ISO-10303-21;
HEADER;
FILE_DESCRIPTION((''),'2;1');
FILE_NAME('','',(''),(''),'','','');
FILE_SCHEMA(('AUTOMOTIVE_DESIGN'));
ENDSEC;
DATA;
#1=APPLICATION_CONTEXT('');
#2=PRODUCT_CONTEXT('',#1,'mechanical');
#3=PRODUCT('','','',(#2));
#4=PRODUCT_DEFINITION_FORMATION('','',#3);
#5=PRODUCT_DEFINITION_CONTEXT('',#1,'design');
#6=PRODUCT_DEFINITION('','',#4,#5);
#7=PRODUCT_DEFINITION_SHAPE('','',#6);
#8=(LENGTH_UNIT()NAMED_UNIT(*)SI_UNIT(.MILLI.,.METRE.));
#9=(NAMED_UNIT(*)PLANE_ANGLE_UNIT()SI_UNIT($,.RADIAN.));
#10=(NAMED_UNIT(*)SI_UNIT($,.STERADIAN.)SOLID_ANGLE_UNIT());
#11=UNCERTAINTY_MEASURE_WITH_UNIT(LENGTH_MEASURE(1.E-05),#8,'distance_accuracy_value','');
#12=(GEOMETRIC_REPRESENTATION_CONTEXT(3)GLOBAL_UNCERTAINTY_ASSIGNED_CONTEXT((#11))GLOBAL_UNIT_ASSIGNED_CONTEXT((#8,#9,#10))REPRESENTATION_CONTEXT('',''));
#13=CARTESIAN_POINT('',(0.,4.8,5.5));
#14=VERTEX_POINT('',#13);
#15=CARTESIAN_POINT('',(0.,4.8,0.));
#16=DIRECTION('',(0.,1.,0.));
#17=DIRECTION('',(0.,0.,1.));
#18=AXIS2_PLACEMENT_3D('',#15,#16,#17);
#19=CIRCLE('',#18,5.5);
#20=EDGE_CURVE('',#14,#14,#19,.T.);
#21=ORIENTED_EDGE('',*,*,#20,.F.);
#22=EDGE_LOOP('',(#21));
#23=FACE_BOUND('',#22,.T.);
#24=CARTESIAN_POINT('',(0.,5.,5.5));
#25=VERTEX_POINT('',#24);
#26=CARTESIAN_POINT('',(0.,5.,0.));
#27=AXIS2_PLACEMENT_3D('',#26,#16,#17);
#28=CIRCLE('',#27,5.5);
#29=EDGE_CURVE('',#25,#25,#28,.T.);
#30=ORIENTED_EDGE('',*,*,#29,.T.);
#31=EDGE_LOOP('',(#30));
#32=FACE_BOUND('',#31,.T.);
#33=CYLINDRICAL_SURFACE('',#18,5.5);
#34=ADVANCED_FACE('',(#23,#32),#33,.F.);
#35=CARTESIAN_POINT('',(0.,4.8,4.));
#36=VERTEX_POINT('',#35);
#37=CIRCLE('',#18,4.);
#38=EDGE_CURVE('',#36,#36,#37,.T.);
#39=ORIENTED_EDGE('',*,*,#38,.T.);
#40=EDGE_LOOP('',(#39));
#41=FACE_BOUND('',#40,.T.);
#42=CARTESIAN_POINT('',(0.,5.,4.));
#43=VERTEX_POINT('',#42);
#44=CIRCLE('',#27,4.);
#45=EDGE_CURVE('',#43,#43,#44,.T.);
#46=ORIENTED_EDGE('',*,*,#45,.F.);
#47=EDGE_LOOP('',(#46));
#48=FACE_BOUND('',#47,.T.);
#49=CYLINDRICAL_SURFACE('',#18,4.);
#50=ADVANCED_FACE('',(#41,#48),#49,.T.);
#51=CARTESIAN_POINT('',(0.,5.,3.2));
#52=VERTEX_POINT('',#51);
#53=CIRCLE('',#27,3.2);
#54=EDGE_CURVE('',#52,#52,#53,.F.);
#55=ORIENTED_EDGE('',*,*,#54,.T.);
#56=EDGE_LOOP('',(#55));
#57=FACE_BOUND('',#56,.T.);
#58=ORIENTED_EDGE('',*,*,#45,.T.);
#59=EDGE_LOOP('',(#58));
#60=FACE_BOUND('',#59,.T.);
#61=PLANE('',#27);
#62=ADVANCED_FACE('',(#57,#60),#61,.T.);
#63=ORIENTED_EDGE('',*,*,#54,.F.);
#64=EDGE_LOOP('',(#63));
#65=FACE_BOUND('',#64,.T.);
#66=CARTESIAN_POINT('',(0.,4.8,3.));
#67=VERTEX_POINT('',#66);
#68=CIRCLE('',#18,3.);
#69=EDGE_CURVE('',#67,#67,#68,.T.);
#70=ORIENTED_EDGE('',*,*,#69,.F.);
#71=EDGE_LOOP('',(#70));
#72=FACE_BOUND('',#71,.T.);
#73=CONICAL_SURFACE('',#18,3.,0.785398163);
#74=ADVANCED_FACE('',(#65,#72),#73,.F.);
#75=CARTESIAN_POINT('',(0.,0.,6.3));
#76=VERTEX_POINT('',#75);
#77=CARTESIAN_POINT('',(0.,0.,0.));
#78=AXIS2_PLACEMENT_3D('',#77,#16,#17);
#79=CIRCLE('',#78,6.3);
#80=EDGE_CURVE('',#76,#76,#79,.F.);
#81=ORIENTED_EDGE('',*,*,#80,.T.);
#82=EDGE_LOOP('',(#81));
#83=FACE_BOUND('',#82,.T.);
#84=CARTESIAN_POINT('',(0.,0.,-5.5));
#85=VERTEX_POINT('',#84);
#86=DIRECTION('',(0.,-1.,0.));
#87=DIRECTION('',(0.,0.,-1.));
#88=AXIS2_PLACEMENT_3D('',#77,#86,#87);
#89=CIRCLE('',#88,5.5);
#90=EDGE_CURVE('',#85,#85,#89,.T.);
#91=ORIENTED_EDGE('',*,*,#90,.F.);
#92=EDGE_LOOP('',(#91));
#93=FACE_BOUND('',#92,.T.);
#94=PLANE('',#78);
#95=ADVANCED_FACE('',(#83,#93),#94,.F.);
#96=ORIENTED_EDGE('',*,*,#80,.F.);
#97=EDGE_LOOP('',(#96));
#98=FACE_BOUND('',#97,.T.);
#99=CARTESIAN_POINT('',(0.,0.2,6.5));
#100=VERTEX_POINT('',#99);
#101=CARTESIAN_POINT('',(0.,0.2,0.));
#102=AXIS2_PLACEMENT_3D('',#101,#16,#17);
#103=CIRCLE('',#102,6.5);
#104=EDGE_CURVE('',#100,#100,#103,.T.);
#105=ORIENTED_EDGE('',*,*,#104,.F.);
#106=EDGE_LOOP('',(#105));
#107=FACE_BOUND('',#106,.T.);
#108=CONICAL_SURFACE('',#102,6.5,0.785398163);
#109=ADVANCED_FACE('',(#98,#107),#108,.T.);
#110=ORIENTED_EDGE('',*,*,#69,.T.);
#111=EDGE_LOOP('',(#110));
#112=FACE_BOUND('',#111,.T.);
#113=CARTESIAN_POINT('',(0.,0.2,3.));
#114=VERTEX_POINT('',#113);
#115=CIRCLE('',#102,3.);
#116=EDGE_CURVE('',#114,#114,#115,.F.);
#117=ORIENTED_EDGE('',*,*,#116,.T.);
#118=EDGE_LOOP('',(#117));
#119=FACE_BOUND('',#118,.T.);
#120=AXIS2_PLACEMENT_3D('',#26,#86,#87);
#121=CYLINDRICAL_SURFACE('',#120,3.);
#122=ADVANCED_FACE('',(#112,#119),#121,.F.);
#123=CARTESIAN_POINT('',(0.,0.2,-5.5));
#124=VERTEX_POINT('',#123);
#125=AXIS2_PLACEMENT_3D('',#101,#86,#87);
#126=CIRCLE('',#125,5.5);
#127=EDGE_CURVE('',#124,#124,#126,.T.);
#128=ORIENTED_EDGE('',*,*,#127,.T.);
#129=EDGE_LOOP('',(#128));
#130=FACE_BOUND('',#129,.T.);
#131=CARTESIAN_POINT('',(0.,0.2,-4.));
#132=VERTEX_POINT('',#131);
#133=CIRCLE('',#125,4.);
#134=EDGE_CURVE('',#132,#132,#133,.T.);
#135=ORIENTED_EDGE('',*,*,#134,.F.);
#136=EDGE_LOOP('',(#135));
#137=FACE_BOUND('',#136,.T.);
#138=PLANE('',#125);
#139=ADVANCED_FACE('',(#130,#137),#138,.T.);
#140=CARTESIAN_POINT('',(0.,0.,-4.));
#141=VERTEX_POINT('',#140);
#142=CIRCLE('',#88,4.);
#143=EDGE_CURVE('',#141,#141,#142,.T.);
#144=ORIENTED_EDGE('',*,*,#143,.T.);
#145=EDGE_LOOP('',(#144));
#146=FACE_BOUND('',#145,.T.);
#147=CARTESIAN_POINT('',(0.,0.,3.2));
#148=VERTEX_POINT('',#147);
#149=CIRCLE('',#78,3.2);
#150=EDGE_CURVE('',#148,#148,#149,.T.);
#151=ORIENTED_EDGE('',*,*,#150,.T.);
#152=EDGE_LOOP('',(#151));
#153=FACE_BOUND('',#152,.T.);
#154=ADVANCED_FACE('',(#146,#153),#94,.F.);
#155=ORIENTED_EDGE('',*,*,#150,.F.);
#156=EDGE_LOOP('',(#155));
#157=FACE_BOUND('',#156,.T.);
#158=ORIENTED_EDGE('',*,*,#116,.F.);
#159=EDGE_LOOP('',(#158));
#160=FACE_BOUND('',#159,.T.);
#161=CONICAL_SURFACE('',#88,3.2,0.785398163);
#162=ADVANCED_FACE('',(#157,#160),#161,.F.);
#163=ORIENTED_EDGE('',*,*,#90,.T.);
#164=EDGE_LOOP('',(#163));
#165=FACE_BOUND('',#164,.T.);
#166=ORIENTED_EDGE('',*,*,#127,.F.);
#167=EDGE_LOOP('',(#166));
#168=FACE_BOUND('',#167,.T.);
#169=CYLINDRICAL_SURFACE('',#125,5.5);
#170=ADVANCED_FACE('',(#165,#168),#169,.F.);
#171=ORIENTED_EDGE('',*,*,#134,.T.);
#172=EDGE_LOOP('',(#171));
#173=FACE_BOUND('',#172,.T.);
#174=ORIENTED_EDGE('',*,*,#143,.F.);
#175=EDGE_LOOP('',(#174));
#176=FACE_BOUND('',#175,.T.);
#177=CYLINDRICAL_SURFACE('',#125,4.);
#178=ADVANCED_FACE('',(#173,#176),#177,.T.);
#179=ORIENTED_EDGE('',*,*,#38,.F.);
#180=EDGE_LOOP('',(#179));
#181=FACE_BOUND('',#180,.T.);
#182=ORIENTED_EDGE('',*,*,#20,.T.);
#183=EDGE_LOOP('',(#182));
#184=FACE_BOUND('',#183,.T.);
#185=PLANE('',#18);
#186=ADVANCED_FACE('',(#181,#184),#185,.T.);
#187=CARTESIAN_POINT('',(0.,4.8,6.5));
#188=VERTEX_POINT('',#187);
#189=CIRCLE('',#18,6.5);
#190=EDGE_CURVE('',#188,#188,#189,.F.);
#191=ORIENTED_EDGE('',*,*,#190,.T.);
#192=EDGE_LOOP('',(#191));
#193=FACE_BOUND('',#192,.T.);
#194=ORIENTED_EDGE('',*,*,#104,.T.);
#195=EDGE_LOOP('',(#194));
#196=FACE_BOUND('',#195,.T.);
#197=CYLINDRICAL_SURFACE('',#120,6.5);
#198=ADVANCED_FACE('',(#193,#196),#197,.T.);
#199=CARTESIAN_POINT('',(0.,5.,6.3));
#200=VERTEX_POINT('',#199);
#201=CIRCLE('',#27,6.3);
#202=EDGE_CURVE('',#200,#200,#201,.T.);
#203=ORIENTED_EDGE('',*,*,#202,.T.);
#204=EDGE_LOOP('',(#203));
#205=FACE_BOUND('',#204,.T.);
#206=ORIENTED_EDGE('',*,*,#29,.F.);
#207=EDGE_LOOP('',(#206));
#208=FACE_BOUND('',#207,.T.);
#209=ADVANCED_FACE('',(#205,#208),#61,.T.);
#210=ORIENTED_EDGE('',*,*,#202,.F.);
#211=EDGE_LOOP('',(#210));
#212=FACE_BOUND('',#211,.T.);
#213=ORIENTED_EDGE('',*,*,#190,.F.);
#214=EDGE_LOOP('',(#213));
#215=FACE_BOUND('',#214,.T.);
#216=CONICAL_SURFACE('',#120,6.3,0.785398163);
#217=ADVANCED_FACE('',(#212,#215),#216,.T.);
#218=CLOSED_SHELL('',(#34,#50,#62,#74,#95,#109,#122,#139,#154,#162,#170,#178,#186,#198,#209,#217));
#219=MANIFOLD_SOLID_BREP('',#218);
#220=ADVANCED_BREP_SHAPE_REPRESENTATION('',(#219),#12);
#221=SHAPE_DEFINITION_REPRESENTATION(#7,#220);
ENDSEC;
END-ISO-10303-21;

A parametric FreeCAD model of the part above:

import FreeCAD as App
import Part
import Sketcher

V = App.Vector


def edges_at(feature, points):
    """Names of the edges that pass closest to the given points."""
    edges = feature.Shape.Edges
    near = lambda p: min(range(len(edges)), key=lambda i: edges[i].distToShape(Part.Vertex(*p))[0])
    return sorted({f"Edge{near(p) + 1}" for p in points})

doc = App.newDocument("Part")
params = doc.addObject("Spreadsheet::Sheet", "Params")
for row, (alias, value) in enumerate([
    ("sketch1_diameter", "13 mm"),
    ("sketch1_diameter2", "6 mm"),
    ("pad1_length", "5 mm"),
    ("sketch2_diameter", "11 mm"),
    ("sketch2_diameter2", "8 mm"),
    ("pocket1_length", "0.2 mm"),
    ("sketch3_diameter", "11 mm"),
    ("sketch3_diameter2", "8 mm"),
    ("pocket2_length", "0.2 mm"),
    ("chamfer_size", "0.2 mm"),
], start=1):
    params.set(f"A{row}", alias)
    params.set(f"B{row}", "=" + value)
    params.setAlias(f"B{row}", alias)

body = doc.addObject("PartDesign::Body", "Body")

sketch1 = body.newObject("Sketcher::SketchObject", "Sketch")
sketch1.AttachmentSupport = (doc.getObject("XZ_Plane"), [""])
sketch1.MapMode = "FlatFace"
sketch1.addGeometry(Part.Circle(V(0, 0, 0), V(0, 0, 1), 6.5), False)
sketch1.addGeometry(Part.Circle(V(0, 0, 0), V(0, 0, 1), 3), False)
sketch1.addConstraint(Sketcher.Constraint("Coincident", 0, 3, -1, 1))
sketch1.addConstraint(Sketcher.Constraint("Coincident", 1, 3, -1, 1))
sketch1.addConstraint(Sketcher.Constraint("Diameter", 0, 13.0))
sketch1.addConstraint(Sketcher.Constraint("Diameter", 1, 6.0))
sketch1.setExpression("Constraints[2]", "Params.sketch1_diameter")
sketch1.setExpression("Constraints[3]", "Params.sketch1_diameter2")
pad1 = body.newObject("PartDesign::Pad", "Pad")
pad1.Profile = sketch1
pad1.setExpression("Length", "Params.pad1_length")
pad1.Reversed = True

sketch2 = body.newObject("Sketcher::SketchObject", "Sketch001")
sketch2.AttachmentSupport = (doc.getObject("XZ_Plane"), [""])
sketch2.MapMode = "FlatFace"
sketch2.AttachmentOffset = App.Placement(V(0, 0, -5), App.Rotation())
sketch2.addGeometry(Part.Circle(V(0, 0, 0), V(0, 0, 1), 5.5), False)
sketch2.addGeometry(Part.Circle(V(0, 0, 0), V(0, 0, 1), 4), False)
sketch2.addConstraint(Sketcher.Constraint("Coincident", 0, 3, -1, 1))
sketch2.addConstraint(Sketcher.Constraint("Coincident", 1, 3, -1, 1))
sketch2.addConstraint(Sketcher.Constraint("Diameter", 0, 11.0))
sketch2.addConstraint(Sketcher.Constraint("Diameter", 1, 8.0))
sketch2.setExpression("Constraints[2]", "Params.sketch2_diameter")
sketch2.setExpression("Constraints[3]", "Params.sketch2_diameter2")
pocket1 = body.newObject("PartDesign::Pocket", "Pocket")
pocket1.Profile = sketch2
pocket1.setExpression("Length", "Params.pocket1_length")
pocket1.Reversed = True

sketch3 = body.newObject("Sketcher::SketchObject", "Sketch002")
sketch3.AttachmentSupport = (doc.getObject("XZ_Plane"), [""])
sketch3.MapMode = "FlatFace"
sketch3.AttachmentOffset = App.Placement(V(0, 0, -0.2), App.Rotation())
sketch3.addGeometry(Part.Circle(V(0, 0, 0), V(0, 0, 1), 5.5), False)
sketch3.addGeometry(Part.Circle(V(0, 0, 0), V(0, 0, 1), 4), False)
sketch3.addConstraint(Sketcher.Constraint("Coincident", 0, 3, -1, 1))
sketch3.addConstraint(Sketcher.Constraint("Coincident", 1, 3, -1, 1))
sketch3.addConstraint(Sketcher.Constraint("Diameter", 0, 11.0))
sketch3.addConstraint(Sketcher.Constraint("Diameter", 1, 8.0))
sketch3.setExpression("Constraints[2]", "Params.sketch3_diameter")
sketch3.setExpression("Constraints[3]", "Params.sketch3_diameter2")
pocket2 = body.newObject("PartDesign::Pocket", "Pocket001")
pocket2.Profile = sketch3
pocket2.setExpression("Length", "Params.pocket2_length")
pocket2.Reversed = True
doc.recompute()

chamfer = body.newObject("PartDesign::Chamfer", "Chamfer")
chamfer.Base = (pocket2, edges_at(pocket2, [
    (0, 0, -6.5),
    (0, 5, -6.5),
    (0, 0, -3),
    (0, 5, -3),
]))
chamfer.setExpression("Size", "Params.chamfer_size")

doc.recompute()
